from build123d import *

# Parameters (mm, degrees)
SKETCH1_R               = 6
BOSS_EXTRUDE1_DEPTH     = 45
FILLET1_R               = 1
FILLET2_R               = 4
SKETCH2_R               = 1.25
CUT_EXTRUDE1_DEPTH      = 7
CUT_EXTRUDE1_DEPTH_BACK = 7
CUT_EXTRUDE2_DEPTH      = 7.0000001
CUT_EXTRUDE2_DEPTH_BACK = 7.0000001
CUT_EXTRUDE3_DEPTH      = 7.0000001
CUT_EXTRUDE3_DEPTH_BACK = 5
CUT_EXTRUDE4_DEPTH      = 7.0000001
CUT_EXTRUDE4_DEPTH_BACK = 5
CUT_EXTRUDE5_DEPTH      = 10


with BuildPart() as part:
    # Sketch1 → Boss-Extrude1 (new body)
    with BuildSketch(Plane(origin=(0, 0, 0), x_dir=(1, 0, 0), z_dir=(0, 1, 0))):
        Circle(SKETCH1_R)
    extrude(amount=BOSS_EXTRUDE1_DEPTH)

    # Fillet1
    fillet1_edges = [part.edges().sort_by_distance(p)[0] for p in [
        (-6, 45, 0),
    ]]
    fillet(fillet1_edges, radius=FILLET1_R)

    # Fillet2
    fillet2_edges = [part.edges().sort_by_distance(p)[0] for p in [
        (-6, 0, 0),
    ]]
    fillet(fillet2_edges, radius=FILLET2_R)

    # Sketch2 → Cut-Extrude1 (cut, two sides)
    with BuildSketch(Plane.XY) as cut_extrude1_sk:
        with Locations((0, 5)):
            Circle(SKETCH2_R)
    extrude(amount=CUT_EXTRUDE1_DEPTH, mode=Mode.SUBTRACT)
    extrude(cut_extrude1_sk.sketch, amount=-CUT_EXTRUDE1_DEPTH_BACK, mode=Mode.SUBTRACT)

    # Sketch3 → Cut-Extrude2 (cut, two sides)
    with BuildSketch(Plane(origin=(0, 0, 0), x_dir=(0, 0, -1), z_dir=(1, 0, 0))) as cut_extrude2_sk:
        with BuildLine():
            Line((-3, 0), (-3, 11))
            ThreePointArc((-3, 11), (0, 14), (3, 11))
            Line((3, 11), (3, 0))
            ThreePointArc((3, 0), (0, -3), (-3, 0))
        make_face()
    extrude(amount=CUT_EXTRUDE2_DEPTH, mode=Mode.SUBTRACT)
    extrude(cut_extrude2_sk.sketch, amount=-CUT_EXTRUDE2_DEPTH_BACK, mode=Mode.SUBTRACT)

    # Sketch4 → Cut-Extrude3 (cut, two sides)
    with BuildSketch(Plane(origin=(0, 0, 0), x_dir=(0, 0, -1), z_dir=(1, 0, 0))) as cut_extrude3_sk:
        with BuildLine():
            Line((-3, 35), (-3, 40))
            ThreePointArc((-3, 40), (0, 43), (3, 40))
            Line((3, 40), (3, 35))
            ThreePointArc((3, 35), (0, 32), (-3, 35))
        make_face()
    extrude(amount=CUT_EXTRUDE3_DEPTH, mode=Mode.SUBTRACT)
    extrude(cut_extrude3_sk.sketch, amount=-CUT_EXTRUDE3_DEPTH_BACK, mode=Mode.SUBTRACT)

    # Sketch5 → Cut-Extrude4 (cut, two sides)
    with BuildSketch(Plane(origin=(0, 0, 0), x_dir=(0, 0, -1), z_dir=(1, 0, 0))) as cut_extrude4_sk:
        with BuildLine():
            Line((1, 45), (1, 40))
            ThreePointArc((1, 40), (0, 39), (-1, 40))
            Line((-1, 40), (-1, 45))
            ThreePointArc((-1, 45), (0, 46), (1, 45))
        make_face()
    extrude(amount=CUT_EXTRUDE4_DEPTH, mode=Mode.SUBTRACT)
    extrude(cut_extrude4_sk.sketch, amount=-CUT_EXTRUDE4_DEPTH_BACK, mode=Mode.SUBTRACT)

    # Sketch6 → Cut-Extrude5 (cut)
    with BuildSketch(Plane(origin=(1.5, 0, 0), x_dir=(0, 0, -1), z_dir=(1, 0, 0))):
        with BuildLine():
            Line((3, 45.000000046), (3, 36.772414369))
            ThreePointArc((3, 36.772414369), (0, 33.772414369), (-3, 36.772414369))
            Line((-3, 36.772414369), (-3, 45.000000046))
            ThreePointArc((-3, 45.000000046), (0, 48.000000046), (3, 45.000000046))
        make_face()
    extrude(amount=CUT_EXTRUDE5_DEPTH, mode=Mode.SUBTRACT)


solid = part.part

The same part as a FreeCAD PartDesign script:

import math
import FreeCAD as App
import Part
import Sketcher

V = App.Vector


def edges_at(feature, points):
    """Names of the edges that pass closest to the given points."""
    edges = feature.Shape.Edges
    near = lambda p: min(range(len(edges)), key=lambda i: edges[i].distToShape(Part.Vertex(*p))[0])
    return sorted({f"Edge{near(p) + 1}" for p in points})

doc = App.newDocument("Part")
body = doc.addObject("PartDesign::Body", "Body")

# Sketch on XZ plane
sketch1 = body.newObject("Sketcher::SketchObject", "Sketch")
sketch1.AttachmentSupport = (doc.getObject("XZ_Plane"), [""])
sketch1.MapMode = "FlatFace"
sketch1.addGeometry(Part.Circle(V(0, 0, 0), V(0, 0, 1), 6), False)
sketch1.addConstraint([
    Sketcher.Constraint("Coincident", 0, 3, -1, 1),
    Sketcher.Constraint("Diameter", 0, 12.0),
])
pad1 = body.newObject("PartDesign::Pad", "Pad")
pad1.Profile = sketch1
pad1.Length = 45
pad1.Reversed = True
doc.recompute()

fillet = body.newObject("PartDesign::Fillet", "Fillet")
fillet.Base = (pad1, edges_at(pad1, [(-6, 45, 0)]))
fillet.Radius = 1
doc.recompute()

fillet2 = body.newObject("PartDesign::Fillet", "Fillet001")
fillet2.Base = (fillet, edges_at(fillet, [(-6, 0, 0)]))
fillet2.Radius = 4

# Sketch on XY plane
sketch2 = body.newObject("Sketcher::SketchObject", "Sketch001")
sketch2.AttachmentSupport = (doc.getObject("XY_Plane"), [""])
sketch2.MapMode = "FlatFace"
sketch2.addGeometry(Part.Circle(V(0, 5, 0), V(0, 0, 1), 1.2), False)
sketch2.addConstraint([
    Sketcher.Constraint("PointOnObject", 0, 3, -2),
    Sketcher.Constraint("Diameter", 0, 2.5),
    Sketcher.Constraint("DistanceY", -1, 1, 0, 3, 5.0),
])
pocket1 = body.newObject("PartDesign::Pocket", "Pocket")
pocket1.Profile = sketch2
pocket1.Type = "ThroughAll"
pocket1.Midplane = True

# Sketch on YZ plane
sketch3 = body.newObject("Sketcher::SketchObject", "Sketch002")
sketch3.AttachmentSupport = (doc.getObject("YZ_Plane"), [""])
sketch3.MapMode = "FlatFace"
sketch3.addGeometry([
    Part.LineSegment(V(11, 3, 0), V(0, 3, 0)),
    Part.ArcOfCircle(Part.Circle(V(0, 0, 0), V(0, 0, 1), 3), math.radians(90), math.radians(270)),
    Part.LineSegment(V(0, -3, 0), V(11, -3, 0)),
    Part.ArcOfCircle(Part.Circle(V(11, 0, 0), V(0, 0, 1), 3), math.radians(-90), math.radians(90)),
], False)
sketch3.addConstraint([
    Sketcher.Constraint("Tangent", 0, 2, 1, 1),
    Sketcher.Constraint("Tangent", 1, 2, 2, 1),
    Sketcher.Constraint("Tangent", 2, 2, 3, 1),
    Sketcher.Constraint("Tangent", 3, 2, 0, 1),
    Sketcher.Constraint("Horizontal", 0),
    Sketcher.Constraint("Horizontal", 2),
    Sketcher.Constraint("Coincident", 1, 3, -1, 1),
    Sketcher.Constraint("Radius", 1, 3.0),
    Sketcher.Constraint("DistanceX", 0, 2, 0, 1, 11.0),
])
pocket2 = body.newObject("PartDesign::Pocket", "Pocket001")
pocket2.Profile = sketch3
pocket2.Type = "ThroughAll"
pocket2.Midplane = True

# Sketch on YZ plane
sketch4 = body.newObject("Sketcher::SketchObject", "Sketch003")
sketch4.AttachmentSupport = (doc.getObject("YZ_Plane"), [""])
sketch4.MapMode = "FlatFace"
sketch4.addGeometry([
    Part.LineSegment(V(40, 3, 0), V(35, 3, 0)),
    Part.ArcOfCircle(Part.Circle(V(35, 0, 0), V(0, 0, 1), 3), math.radians(90), math.radians(270)),
    Part.LineSegment(V(35, -3, 0), V(40, -3, 0)),
    Part.ArcOfCircle(Part.Circle(V(40, 0, 0), V(0, 0, 1), 3), math.radians(-90), math.radians(90)),
], False)
sketch4.addConstraint([
    Sketcher.Constraint("Tangent", 0, 2, 1, 1),
    Sketcher.Constraint("Tangent", 1, 2, 2, 1),
    Sketcher.Constraint("Tangent", 2, 2, 3, 1),
    Sketcher.Constraint("Tangent", 3, 2, 0, 1),
    Sketcher.Constraint("Horizontal", 0),
    Sketcher.Constraint("Horizontal", 2),
    Sketcher.Constraint("PointOnObject", 1, 3, -1),
    Sketcher.Constraint("Radius", 1, 3.0),
    Sketcher.Constraint("DistanceX", 0, 2, 0, 1, 5.0),
    Sketcher.Constraint("DistanceX", -1, 1, 1, 3, 35.0),
])
pocket3 = body.newObject("PartDesign::Pocket", "Pocket002")
pocket3.Profile = sketch4
pocket3.Type = "TwoLengths"
pocket3.Length = 7
pocket3.Length2 = 5
pocket3.Reversed = True

# Sketch on YZ plane
sketch5 = body.newObject("Sketcher::SketchObject", "Sketch004")
sketch5.AttachmentSupport = (doc.getObject("YZ_Plane"), [""])
sketch5.MapMode = "FlatFace"
sketch5.addGeometry([
    Part.LineSegment(V(40, -1, 0), V(45, -1, 0)),
    Part.ArcOfCircle(Part.Circle(V(45, 0, 0), V(0, 0, 1), 1), math.radians(-90), math.radians(90)),
    Part.LineSegment(V(45, 1, 0), V(40, 1, 0)),
    Part.ArcOfCircle(Part.Circle(V(40, 0, 0), V(0, 0, 1), 1), math.radians(90), math.radians(270)),
], False)
sketch5.addConstraint([
    Sketcher.Constraint("Tangent", 0, 2, 1, 1),
    Sketcher.Constraint("Tangent", 1, 2, 2, 1),
    Sketcher.Constraint("Tangent", 2, 2, 3, 1),
    Sketcher.Constraint("Tangent", 3, 2, 0, 1),
    Sketcher.Constraint("Horizontal", 0),
    Sketcher.Constraint("Horizontal", 2),
    Sketcher.Constraint("PointOnObject", 1, 3, -1),
    Sketcher.Constraint("Radius", 1, 1.0),
    Sketcher.Constraint("DistanceX", 0, 1, 0, 2, 5.0),
    Sketcher.Constraint("DistanceX", -1, 1, 1, 3, 45.0),
])
pocket4 = body.newObject("PartDesign::Pocket", "Pocket003")
pocket4.Profile = sketch5
pocket4.Type = "TwoLengths"
pocket4.Length = 7
pocket4.Length2 = 5
pocket4.Reversed = True

# Sketch on YZ plane
sketch6 = body.newObject("Sketcher::SketchObject", "Sketch005")
sketch6.AttachmentSupport = (doc.getObject("YZ_Plane"), [""])
sketch6.MapMode = "FlatFace"
sketch6.AttachmentOffset = App.Placement(V(0, 0, 1.5), App.Rotation())
sketch6.addGeometry([
    Part.LineSegment(V(36.8, -3, 0), V(45, -3, 0)),
    Part.ArcOfCircle(Part.Circle(V(45, 0, 0), V(0, 0, 1), 3), math.radians(-90), math.radians(90)),
    Part.LineSegment(V(45, 3, 0), V(36.8, 3, 0)),
    Part.ArcOfCircle(Part.Circle(V(36.8, 0, 0), V(0, 0, 1), 3), math.radians(90), math.radians(270)),
], False)
sketch6.addConstraint([
    Sketcher.Constraint("Tangent", 0, 2, 1, 1),
    Sketcher.Constraint("Tangent", 1, 2, 2, 1),
    Sketcher.Constraint("Tangent", 2, 2, 3, 1),
    Sketcher.Constraint("Tangent", 3, 2, 0, 1),
    Sketcher.Constraint("Horizontal", 0),
    Sketcher.Constraint("Horizontal", 2),
    Sketcher.Constraint("PointOnObject", 1, 3, -1),
    Sketcher.Constraint("Radius", 1, 3.0),
    Sketcher.Constraint("DistanceX", -1, 1, 1, 3, 45.0),
    Sketcher.Constraint("DistanceX", 0, 1, 0, 2, 8.227586),
])
pocket5 = body.newObject("PartDesign::Pocket", "Pocket004")
pocket5.Profile = sketch6
pocket5.Length = 10
pocket5.Reversed = True

doc.recompute()
